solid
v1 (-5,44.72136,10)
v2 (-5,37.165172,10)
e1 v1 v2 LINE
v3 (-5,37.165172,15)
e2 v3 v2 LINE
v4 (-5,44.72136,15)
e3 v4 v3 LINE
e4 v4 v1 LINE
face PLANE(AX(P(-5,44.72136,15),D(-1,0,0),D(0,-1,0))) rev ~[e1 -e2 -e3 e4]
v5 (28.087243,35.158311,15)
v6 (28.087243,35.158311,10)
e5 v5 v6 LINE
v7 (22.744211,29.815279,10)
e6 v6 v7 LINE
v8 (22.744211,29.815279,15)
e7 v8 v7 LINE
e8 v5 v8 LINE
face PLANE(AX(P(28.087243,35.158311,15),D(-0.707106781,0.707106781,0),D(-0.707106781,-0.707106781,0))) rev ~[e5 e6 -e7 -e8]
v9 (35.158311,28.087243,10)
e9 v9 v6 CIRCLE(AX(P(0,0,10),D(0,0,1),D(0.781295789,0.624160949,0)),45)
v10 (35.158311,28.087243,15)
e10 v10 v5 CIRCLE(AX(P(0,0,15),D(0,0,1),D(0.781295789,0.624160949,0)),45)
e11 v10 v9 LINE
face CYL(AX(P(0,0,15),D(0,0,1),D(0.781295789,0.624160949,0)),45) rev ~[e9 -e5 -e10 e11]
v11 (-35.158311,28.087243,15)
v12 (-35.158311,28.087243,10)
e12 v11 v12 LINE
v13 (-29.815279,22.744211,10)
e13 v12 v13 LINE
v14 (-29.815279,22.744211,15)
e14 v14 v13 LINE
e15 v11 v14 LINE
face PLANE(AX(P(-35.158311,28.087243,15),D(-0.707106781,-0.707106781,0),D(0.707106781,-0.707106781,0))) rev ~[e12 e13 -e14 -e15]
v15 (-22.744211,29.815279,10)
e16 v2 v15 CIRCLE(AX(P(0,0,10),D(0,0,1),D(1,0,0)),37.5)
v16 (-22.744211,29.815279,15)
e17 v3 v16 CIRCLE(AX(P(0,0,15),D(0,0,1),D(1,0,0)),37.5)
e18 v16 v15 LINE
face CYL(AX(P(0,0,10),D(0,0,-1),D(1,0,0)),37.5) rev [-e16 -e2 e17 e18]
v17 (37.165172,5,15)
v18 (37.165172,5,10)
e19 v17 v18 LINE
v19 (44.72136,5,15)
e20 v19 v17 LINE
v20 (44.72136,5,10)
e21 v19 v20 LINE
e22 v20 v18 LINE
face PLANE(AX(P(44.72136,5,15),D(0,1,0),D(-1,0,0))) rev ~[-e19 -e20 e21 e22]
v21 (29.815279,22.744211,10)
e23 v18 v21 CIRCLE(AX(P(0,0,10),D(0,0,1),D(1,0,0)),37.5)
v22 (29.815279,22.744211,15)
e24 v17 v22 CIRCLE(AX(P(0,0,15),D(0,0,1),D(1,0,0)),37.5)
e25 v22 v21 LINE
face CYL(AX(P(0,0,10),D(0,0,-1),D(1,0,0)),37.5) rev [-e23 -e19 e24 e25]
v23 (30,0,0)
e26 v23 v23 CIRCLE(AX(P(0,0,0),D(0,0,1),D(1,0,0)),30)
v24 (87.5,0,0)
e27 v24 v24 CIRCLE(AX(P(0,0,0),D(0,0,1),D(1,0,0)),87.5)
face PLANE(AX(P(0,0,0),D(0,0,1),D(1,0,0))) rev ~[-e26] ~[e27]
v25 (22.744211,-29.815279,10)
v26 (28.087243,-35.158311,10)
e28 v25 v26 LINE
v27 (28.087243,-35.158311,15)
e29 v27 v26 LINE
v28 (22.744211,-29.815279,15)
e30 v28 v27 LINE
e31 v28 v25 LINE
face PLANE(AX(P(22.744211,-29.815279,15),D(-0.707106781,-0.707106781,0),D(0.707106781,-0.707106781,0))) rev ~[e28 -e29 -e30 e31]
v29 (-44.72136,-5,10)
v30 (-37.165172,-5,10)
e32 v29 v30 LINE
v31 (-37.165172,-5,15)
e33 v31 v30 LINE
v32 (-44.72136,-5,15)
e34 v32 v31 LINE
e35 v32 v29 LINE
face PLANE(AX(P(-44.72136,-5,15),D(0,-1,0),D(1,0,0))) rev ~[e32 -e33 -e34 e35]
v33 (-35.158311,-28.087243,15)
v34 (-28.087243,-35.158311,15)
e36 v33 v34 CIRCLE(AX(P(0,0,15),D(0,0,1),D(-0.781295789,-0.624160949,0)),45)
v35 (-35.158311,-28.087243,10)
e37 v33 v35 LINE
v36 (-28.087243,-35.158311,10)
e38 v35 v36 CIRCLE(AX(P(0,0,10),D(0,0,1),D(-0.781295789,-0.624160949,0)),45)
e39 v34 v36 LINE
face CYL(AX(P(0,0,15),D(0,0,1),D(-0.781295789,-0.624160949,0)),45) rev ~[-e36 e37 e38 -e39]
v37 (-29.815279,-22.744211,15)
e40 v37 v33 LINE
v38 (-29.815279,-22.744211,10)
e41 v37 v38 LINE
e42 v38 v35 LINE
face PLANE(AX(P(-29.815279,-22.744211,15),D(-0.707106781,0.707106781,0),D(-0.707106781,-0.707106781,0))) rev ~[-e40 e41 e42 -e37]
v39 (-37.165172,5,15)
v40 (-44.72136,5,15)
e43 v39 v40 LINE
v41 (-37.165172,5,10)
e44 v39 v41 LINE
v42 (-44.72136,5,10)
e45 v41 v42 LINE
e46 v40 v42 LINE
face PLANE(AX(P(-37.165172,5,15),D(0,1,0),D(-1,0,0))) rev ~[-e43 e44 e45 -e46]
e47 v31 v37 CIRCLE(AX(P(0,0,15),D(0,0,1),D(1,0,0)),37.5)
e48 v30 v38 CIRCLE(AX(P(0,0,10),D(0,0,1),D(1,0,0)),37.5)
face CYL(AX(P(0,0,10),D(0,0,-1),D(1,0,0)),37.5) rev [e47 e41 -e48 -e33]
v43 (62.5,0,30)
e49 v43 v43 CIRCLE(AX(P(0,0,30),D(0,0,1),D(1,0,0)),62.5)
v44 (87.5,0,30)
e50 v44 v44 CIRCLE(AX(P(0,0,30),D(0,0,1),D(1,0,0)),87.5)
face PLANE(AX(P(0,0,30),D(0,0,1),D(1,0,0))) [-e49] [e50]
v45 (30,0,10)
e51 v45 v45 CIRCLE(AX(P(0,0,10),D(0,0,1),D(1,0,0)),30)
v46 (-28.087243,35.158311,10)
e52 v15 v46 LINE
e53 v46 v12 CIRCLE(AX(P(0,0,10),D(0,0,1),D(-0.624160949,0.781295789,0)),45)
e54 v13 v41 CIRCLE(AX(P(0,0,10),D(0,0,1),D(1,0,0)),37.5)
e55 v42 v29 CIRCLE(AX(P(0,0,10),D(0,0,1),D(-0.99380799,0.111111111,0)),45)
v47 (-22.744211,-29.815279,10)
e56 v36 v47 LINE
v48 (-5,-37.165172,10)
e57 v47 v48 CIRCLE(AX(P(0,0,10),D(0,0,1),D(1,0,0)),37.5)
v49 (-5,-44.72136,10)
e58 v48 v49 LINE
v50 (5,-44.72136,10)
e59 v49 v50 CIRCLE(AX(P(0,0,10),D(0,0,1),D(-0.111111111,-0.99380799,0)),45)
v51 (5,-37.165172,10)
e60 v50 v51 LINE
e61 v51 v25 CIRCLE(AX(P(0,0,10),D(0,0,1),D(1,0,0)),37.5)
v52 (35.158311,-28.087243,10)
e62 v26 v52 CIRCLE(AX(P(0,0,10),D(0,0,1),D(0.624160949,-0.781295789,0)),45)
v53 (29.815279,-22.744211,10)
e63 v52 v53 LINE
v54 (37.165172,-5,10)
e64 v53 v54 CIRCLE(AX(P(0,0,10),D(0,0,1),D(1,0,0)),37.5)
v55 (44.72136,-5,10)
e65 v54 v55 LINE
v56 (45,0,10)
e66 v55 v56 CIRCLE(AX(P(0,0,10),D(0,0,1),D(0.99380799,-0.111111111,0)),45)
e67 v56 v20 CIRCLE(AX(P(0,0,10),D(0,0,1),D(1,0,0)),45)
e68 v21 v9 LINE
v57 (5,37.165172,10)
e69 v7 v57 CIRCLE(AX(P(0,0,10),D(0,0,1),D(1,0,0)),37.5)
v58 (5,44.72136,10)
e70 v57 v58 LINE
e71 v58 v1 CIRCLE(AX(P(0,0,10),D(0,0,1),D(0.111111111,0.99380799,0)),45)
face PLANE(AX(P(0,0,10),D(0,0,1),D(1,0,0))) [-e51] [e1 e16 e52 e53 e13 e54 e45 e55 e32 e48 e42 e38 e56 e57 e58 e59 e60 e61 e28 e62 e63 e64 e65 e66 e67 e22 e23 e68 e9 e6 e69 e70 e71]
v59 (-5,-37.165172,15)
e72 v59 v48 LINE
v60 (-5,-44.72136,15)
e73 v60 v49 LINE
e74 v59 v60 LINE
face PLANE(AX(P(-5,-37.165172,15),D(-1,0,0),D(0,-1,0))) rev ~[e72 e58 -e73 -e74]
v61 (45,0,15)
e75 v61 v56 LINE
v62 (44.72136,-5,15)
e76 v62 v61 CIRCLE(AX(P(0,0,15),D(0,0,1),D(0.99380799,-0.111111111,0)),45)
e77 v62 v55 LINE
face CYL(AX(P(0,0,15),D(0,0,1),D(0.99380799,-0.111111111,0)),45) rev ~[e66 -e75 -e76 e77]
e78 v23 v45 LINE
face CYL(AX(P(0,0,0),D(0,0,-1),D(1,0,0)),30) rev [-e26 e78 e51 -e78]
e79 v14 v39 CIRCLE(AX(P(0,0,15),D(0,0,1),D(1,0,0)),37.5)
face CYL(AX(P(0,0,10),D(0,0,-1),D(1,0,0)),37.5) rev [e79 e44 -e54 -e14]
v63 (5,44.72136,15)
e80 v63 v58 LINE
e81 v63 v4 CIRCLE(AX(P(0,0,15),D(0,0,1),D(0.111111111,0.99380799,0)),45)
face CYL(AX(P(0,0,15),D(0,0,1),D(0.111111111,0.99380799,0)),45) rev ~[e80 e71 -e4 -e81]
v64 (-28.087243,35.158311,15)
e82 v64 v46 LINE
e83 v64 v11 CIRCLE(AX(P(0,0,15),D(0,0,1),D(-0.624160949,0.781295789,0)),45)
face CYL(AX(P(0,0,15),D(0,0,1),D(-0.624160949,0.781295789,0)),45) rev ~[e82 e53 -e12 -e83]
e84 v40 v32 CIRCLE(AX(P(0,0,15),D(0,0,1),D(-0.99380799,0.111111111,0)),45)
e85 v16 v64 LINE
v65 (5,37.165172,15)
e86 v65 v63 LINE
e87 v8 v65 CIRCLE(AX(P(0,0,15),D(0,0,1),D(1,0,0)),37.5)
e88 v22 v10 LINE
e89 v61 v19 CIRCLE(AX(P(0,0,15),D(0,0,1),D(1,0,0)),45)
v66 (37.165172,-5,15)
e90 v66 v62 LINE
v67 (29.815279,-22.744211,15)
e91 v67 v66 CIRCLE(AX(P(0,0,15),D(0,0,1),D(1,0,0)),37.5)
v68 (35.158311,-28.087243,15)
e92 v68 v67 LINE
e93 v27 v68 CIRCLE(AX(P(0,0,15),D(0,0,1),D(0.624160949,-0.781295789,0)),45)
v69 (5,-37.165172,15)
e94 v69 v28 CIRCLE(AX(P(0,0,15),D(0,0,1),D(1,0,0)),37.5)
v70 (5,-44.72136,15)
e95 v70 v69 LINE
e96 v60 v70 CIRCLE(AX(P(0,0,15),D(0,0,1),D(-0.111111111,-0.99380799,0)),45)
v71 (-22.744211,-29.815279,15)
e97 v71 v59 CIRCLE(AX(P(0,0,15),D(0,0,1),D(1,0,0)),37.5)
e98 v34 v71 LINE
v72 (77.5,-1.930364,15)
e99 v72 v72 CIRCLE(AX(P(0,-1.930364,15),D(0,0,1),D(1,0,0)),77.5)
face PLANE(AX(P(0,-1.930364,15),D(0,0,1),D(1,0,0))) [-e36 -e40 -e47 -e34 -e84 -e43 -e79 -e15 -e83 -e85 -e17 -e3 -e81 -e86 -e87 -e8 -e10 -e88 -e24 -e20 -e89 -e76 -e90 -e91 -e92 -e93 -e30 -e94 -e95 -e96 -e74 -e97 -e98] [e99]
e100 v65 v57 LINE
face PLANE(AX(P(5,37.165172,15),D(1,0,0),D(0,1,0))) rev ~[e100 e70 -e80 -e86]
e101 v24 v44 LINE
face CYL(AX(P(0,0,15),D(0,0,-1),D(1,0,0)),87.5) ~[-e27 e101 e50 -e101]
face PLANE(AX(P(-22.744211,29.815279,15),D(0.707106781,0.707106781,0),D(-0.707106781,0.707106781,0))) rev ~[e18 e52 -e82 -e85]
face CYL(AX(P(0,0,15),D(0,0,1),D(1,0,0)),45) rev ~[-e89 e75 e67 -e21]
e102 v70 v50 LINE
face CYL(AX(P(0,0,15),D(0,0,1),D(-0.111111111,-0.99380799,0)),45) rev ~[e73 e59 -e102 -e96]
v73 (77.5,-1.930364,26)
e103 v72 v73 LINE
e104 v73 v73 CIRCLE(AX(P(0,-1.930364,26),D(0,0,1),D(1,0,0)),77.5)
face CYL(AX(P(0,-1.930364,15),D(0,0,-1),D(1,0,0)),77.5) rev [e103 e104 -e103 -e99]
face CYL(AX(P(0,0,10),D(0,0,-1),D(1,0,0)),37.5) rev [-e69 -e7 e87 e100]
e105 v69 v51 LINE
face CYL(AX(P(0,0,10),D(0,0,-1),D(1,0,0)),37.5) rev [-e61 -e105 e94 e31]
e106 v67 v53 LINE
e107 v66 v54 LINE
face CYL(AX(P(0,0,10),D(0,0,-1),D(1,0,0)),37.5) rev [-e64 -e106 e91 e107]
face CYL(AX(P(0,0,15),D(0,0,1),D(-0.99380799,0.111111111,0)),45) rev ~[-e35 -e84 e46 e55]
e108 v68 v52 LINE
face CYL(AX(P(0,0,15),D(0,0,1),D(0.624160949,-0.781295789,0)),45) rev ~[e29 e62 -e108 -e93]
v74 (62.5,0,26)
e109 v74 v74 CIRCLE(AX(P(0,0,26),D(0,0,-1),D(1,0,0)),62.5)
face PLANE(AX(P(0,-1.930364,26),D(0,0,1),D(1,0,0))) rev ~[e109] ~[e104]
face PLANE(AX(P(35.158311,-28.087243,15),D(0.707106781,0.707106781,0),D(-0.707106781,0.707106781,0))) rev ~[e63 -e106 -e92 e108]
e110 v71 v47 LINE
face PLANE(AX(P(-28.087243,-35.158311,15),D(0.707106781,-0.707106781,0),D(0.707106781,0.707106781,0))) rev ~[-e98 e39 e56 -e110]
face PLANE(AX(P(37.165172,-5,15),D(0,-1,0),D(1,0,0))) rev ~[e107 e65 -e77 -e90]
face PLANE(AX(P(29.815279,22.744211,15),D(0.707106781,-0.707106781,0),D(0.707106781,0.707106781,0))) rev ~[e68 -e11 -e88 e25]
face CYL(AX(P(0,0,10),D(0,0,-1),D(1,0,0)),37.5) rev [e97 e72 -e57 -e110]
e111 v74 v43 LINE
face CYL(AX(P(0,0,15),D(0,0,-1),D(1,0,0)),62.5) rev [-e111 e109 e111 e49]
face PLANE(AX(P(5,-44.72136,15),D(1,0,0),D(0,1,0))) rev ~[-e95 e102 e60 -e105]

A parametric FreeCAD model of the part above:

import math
import FreeCAD as App
import Part
import Sketcher
from FreeCAD import Vector
Q = App.Units.Quantity

doc = App.newDocument("Part")
body = doc.addObject("PartDesign::Body", "Body")

# Sketch on XY plane
sketch1 = body.newObject("Sketcher::SketchObject", "Sketch")
sketch1.AttachmentSupport = (doc.getObject("XY_Plane"), [""])
sketch1.MapMode = "FlatFace"
sketch1.addGeometry([
    Part.Circle(Vector(0, 0, 0), Vector(0, 0, 1), 87.5),
    Part.Circle(Vector(0, 0, 0), Vector(0, 0, 1), 30),
], False)
sketch1.addConstraint([
    Sketcher.Constraint("Coincident", 0, 3, -1, 1),
    Sketcher.Constraint("Coincident", 1, 3, -1, 1),
    Sketcher.Constraint("Diameter", 0, Q("175 mm")),
    Sketcher.Constraint("Diameter", 1, Q("60 mm")),
])
pad1 = body.newObject("PartDesign::Pad", "Pad")
pad1.Profile = sketch1
pad1.Length = 10

# Sketch on XY plane
sketch2 = body.newObject("Sketcher::SketchObject", "Sketch001")
sketch2.AttachmentSupport = (doc.getObject("XY_Plane"), [""])
sketch2.MapMode = "FlatFace"
sketch2.AttachmentOffset = App.Placement(Vector(0, 0, 10), App.Rotation())
sketch2.addGeometry([
    Part.Circle(Vector(0, 0, 0), Vector(0, 0, 1), 87.5),
    Part.Circle(Vector(0, 0, 0), Vector(0, 0, 1), 37.5),
], False)
sketch2.addConstraint([
    Sketcher.Constraint("Coincident", 0, 3, -1, 1),
    Sketcher.Constraint("Coincident", 1, 3, -1, 1),
    Sketcher.Constraint("Diameter", 0, Q("175 mm")),
    Sketcher.Constraint("Diameter", 1, Q("75 mm")),
])
pad2 = body.newObject("PartDesign::Pad", "Pad001")
pad2.Profile = sketch2
pad2.Length = 5

# Sketch on XY plane
sketch3 = body.newObject("Sketcher::SketchObject", "Sketch002")
sketch3.AttachmentSupport = (doc.getObject("XY_Plane"), [""])
sketch3.MapMode = "FlatFace"
sketch3.AttachmentOffset = App.Placement(Vector(0, 0, 15), App.Rotation())
sketch3.addGeometry([
    Part.ArcOfCircle(Part.Circle(Vector(0, 0, 0), Vector(0, 0, 1), 37.5), math.radians(127.337744), math.radians(142.662256)),  # 0
    Part.LineSegment(Vector(-22.744211, 29.815279, 0), Vector(-28.087243, 35.158311, 0)),  # 1
    Part.ArcOfCircle(Part.Circle(Vector(0, 0, 0), Vector(0, 0, 1), 45), math.radians(128.62063), math.radians(141.37937)),  # 2
    Part.LineSegment(Vector(-35.158311, 28.087243, 0), Vector(-29.815279, 22.744211, 0)),  # 3
    Part.LineSegment(Vector(-5, 44.72136, 0), Vector(-5, 37.165172, 0)),  # 4
    Part.ArcOfCircle(Part.Circle(Vector(0, 0, 0), Vector(0, 0, 1), 37.5), math.radians(82.337744), math.radians(97.662256)),  # 5
    Part.LineSegment(Vector(5, 37.165172, 0), Vector(5, 44.72136, 0)),  # 6
    Part.ArcOfCircle(Part.Circle(Vector(0, 0, 0), Vector(0, 0, 1), 45), math.radians(83.62063), math.radians(96.37937)),  # 7
    Part.LineSegment(Vector(28.087243, 35.158311, 0), Vector(22.744211, 29.815279, 0)),  # 8
    Part.ArcOfCircle(Part.Circle(Vector(0, 0, 0), Vector(0, 0, 1), 37.5), math.radians(37.337744), math.radians(52.662256)),  # 9
    Part.LineSegment(Vector(29.815279, 22.744211, 0), Vector(35.158311, 28.087243, 0)),  # 10
    Part.ArcOfCircle(Part.Circle(Vector(0, 0, 0), Vector(0, 0, 1), 45), math.radians(38.62063), math.radians(51.37937)),  # 11
    Part.LineSegment(Vector(44.72136, 5, 0), Vector(37.165172, 5, 0)),  # 12
    Part.ArcOfCircle(Part.Circle(Vector(0, 0, 0), Vector(0, 0, 1), 37.5), math.radians(0), math.radians(7.662256)),  # 13
    Part.ArcOfCircle(Part.Circle(Vector(0, 0, 0), Vector(0, 0, 1), 37.5), math.radians(-7.662256), math.radians(0)),  # 14
    Part.LineSegment(Vector(37.165172, -5, 0), Vector(44.72136, -5, 0)),  # 15
    Part.ArcOfCircle(Part.Circle(Vector(0, 0, 0), Vector(0, 0, 1), 45), math.radians(-6.37937), math.radians(0)),  # 16
    Part.ArcOfCircle(Part.Circle(Vector(0, 0, 0), Vector(0, 0, 1), 45), math.radians(0), math.radians(6.37937)),  # 17
    Part.LineSegment(Vector(35.158311, -28.087243, 0), Vector(29.815279, -22.744211, 0)),  # 18
    Part.ArcOfCircle(Part.Circle(Vector(0, 0, 0), Vector(0, 0, 1), 37.5), math.radians(-52.662256), math.radians(-37.337744)),  # 19
    Part.LineSegment(Vector(22.744211, -29.815279, 0), Vector(28.087243, -35.158311, 0)),  # 20
    Part.ArcOfCircle(Part.Circle(Vector(0, 0, 0), Vector(0, 0, 1), 45), math.radians(-51.37937), math.radians(-38.62063)),  # 21
    Part.ArcOfCircle(Part.Circle(Vector(0, 0, 0), Vector(0, 0, 1), 37.5), math.radians(-97.662256), math.radians(-82.337744)),  # 22
    Part.LineSegment(Vector(-5, -37.165172, 0), Vector(-5, -44.72136, 0)),  # 23
    Part.ArcOfCircle(Part.Circle(Vector(0, 0, 0), Vector(0, 0, 1), 45), math.radians(-96.37937), math.radians(-83.62063)),  # 24
    Part.LineSegment(Vector(5, -44.72136, 0), Vector(5, -37.165172, 0)),  # 25
    Part.ArcOfCircle(Part.Circle(Vector(0, 0, 0), Vector(0, 0, 1), 37.5), math.radians(-142.662256), math.radians(-127.337744)),  # 26
    Part.LineSegment(Vector(-29.815279, -22.744211, 0), Vector(-35.158311, -28.087243, 0)),  # 27
    Part.ArcOfCircle(Part.Circle(Vector(0, 0, 0), Vector(0, 0, 1), 45), math.radians(-141.37937), math.radians(-128.62063)),  # 28
    Part.LineSegment(Vector(-28.087243, -35.158311, 0), Vector(-22.744211, -29.815279, 0)),  # 29
    Part.ArcOfCircle(Part.Circle(Vector(0, 0, 0), Vector(0, 0, 1), 37.5), math.radians(172.337744), math.radians(187.662256)),  # 30
    Part.LineSegment(Vector(-37.165172, 5, 0), Vector(-44.72136, 5, 0)),  # 31
    Part.ArcOfCircle(Part.Circle(Vector(0, 0, 0), Vector(0, 0, 1), 45), math.radians(173.62063), math.radians(186.37937)),  # 32
    Part.LineSegment(Vector(-44.72136, -5, 0), Vector(-37.165172, -5, 0)),  # 33
], False)
sketch3.addConstraint([
    Sketcher.Constraint("Coincident", 0, 1, 1, 1),
    Sketcher.Constraint("Coincident", 1, 2, 2, 1),
    Sketcher.Constraint("Coincident", 2, 2, 3, 1),
    Sketcher.Constraint("Coincident", 3, 2, 0, 2),
    Sketcher.Constraint("Coincident", 4, 2, 5, 2),
    Sketcher.Constraint("Coincident", 5, 1, 6, 1),
    Sketcher.Constraint("Coincident", 6, 2, 7, 1),
    Sketcher.Constraint("Coincident", 7, 2, 4, 1),
    Sketcher.Constraint("Coincident", 8, 2, 9, 2),
    Sketcher.Constraint("Coincident", 9, 1, 10, 1),
    Sketcher.Constraint("Coincident", 10, 2, 11, 1),
    Sketcher.Constraint("Coincident", 11, 2, 8, 1),
    Sketcher.Constraint("Coincident", 12, 2, 13, 2),
    Sketcher.Constraint("Tangent", 13, 1, 14, 2),
    Sketcher.Constraint("Coincident", 14, 1, 15, 1),
    Sketcher.Constraint("Coincident", 15, 2, 16, 1),
    Sketcher.Constraint("Tangent", 16, 2, 17, 1),
    Sketcher.Constraint("Coincident", 17, 2, 12, 1),
    Sketcher.Constraint("Coincident", 18, 2, 19, 2),
    Sketcher.Constraint("Coincident", 19, 1, 20, 1),
    Sketcher.Constraint("Coincident", 20, 2, 21, 1),
    Sketcher.Constraint("Coincident", 21, 2, 18, 1),
    Sketcher.Constraint("Coincident", 22, 1, 23, 1),
    Sketcher.Constraint("Coincident", 23, 2, 24, 1),
    Sketcher.Constraint("Coincident", 24, 2, 25, 1),
    Sketcher.Constraint("Coincident", 25, 2, 22, 2),
    Sketcher.Constraint("Coincident", 26, 1, 27, 1),
    Sketcher.Constraint("Coincident", 27, 2, 28, 1),
    Sketcher.Constraint("Coincident", 28, 2, 29, 1),
    Sketcher.Constraint("Coincident", 29, 2, 26, 2),
    Sketcher.Constraint("Coincident", 30, 1, 31, 1),
    Sketcher.Constraint("Coincident", 31, 2, 32, 1),
    Sketcher.Constraint("Coincident", 32, 2, 33, 1),
    Sketcher.Constraint("Coincident", 33, 2, 30, 2),
    Sketcher.Constraint("Vertical", 4),
    Sketcher.Constraint("Vertical", 6),
    Sketcher.Constraint("Horizontal", 12),
    Sketcher.Constraint("Horizontal", 15),
    Sketcher.Constraint("Vertical", 23),
    Sketcher.Constraint("Vertical", 25),
    Sketcher.Constraint("Horizontal", 31),
    Sketcher.Constraint("Horizontal", 33),
    Sketcher.Constraint("Coincident", 0, 3, -1, 1),
    Sketcher.Constraint("Coincident", 2, 3, -1, 1),
    Sketcher.Constraint("Coincident", 5, 3, -1, 1),
    Sketcher.Constraint("Coincident", 7, 3, -1, 1),
    Sketcher.Constraint("Coincident", 9, 3, -1, 1),
    Sketcher.Constraint("Coincident", 11, 3, -1, 1),
    Sketcher.Constraint("Coincident", 13, 3, -1, 1),
    Sketcher.Constraint("Coincident", 16, 3, -1, 1),
    Sketcher.Constraint("Coincident", 19, 3, -1, 1),
    Sketcher.Constraint("Coincident", 21, 3, -1, 1),
    Sketcher.Constraint("Coincident", 22, 3, -1, 1),
    Sketcher.Constraint("Coincident", 24, 3, -1, 1),
    Sketcher.Constraint("Coincident", 26, 3, -1, 1),
    Sketcher.Constraint("Coincident", 28, 3, -1, 1),
    Sketcher.Constraint("Coincident", 30, 3, -1, 1),
    Sketcher.Constraint("Coincident", 32, 3, -1, 1),
    Sketcher.Constraint("Equal", 0, 5),
    Sketcher.Constraint("Equal", 2, 7),
    Sketcher.Constraint("Equal", 5, 9),
    Sketcher.Constraint("Equal", 7, 11),
    Sketcher.Constraint("Equal", 9, 13),
    Sketcher.Constraint("Equal", 13, 14),
    Sketcher.Constraint("Equal", 11, 16),
    Sketcher.Constraint("Equal", 16, 17),
    Sketcher.Constraint("Equal", 14, 19),
    Sketcher.Constraint("Equal", 17, 21),
    Sketcher.Constraint("Equal", 19, 22),
    Sketcher.Constraint("Equal", 21, 24),
    Sketcher.Constraint("Equal", 22, 26),
    Sketcher.Constraint("Equal", 24, 28),
    Sketcher.Constraint("Equal", 26, 30),
    Sketcher.Constraint("Equal", 28, 32),
    Sketcher.Constraint("PointOnObject", 13, 1, -1),
    Sketcher.Constraint("PointOnObject", 16, 2, -1),
    Sketcher.Constraint("Parallel", 1, 3),
    Sketcher.Constraint("Perpendicular", 3, 8),
    Sketcher.Constraint("Parallel", 8, 10),
    Sketcher.Constraint("Perpendicular", 10, 18),
    Sketcher.Constraint("Parallel", 18, 20),
    Sketcher.Constraint("Perpendicular", 20, 27),
    Sketcher.Constraint("Parallel", 27, 29),
    Sketcher.Constraint("Horizontal", 4, 2, 5, 1),
    Sketcher.Constraint("Horizontal", 0, 1, 8, 2),
    Sketcher.Constraint("Horizontal", 3, 2, 9, 1),
    Sketcher.Constraint("Horizontal", 2, 2, 10, 2),
    Sketcher.Constraint("Horizontal", 23, 2, 24, 2),
    Sketcher.Constraint("Horizontal", 18, 2, 26, 1),
    Sketcher.Constraint("Horizontal", 20, 2, 28, 2),
    Sketcher.Constraint("Horizontal", 17, 2, 30, 1),
    Sketcher.Constraint("Horizontal", 15, 2, 32, 2),
    Sketcher.Constraint("Vertical", 12, 2, 14, 1),
    Sketcher.Constraint("Vertical", 9, 1, 18, 2),
    Sketcher.Constraint("Vertical", 8, 2, 19, 1),
    Sketcher.Constraint("Vertical", 7, 2, 22, 1),
    Sketcher.Constraint("Equal", 33, 4),
    Sketcher.Constraint("Equal", 1, 3),
    Sketcher.Constraint("Radius", 2, Q("45 mm")),
    Sketcher.Constraint("Radius", 0, Q("37.5 mm")),
    Sketcher.Constraint("DistanceX", 4, 2, -1, 1, Q("5 mm")),
    Sketcher.Constraint("DistanceX", 2, 2, 0, 1, Q("12.414099 mm")),
])
pocket1 = body.newObject("PartDesign::Pocket", "Pocket")
pocket1.Profile = sketch3
pocket1.Length = 5

# Sketch on XY plane
sketch4 = body.newObject("Sketcher::SketchObject", "Sketch003")
sketch4.AttachmentSupport = (doc.getObject("XY_Plane"), [""])
sketch4.MapMode = "FlatFace"
sketch4.AttachmentOffset = App.Placement(Vector(0, 0, 15), App.Rotation())
sketch4.addGeometry([
    Part.Circle(Vector(0, 0, 0), Vector(0, 0, 1), 87.5),
    Part.Circle(Vector(0, 0, 0), Vector(0, 0, 1), 62.5),
], False)
sketch4.addConstraint([
    Sketcher.Constraint("Coincident", 0, 3, -1, 1),
    Sketcher.Constraint("Coincident", 1, 3, -1, 1),
    Sketcher.Constraint("Diameter", 0, Q("175 mm")),
    Sketcher.Constraint("Diameter", 1, Q("125 mm")),
])
pad3 = body.newObject("PartDesign::Pad", "Pad002")
pad3.Profile = sketch4
pad3.Length = 15

# Sketch on XY plane
sketch5 = body.newObject("Sketcher::SketchObject", "Sketch004")
sketch5.AttachmentSupport = (doc.getObject("XY_Plane"), [""])
sketch5.MapMode = "FlatFace"
sketch5.AttachmentOffset = App.Placement(Vector(0, 0, 15), App.Rotation())
sketch5.addGeometry(Part.Circle(Vector(0, -1.930364, 0), Vector(0, 0, 1), 77.5), False)
sketch5.addConstraint([
    Sketcher.Constraint("PointOnObject", 0, 3, -2),
    Sketcher.Constraint("Diameter", 0, Q("155 mm")),
    Sketcher.Constraint("DistanceY", 0, 3, -1, 1, Q("1.930364 mm")),
])
pocket2 = body.newObject("PartDesign::Pocket", "Pocket001")
pocket2.Profile = sketch5
pocket2.Length = 11
pocket2.Reversed = True

doc.recompute()
